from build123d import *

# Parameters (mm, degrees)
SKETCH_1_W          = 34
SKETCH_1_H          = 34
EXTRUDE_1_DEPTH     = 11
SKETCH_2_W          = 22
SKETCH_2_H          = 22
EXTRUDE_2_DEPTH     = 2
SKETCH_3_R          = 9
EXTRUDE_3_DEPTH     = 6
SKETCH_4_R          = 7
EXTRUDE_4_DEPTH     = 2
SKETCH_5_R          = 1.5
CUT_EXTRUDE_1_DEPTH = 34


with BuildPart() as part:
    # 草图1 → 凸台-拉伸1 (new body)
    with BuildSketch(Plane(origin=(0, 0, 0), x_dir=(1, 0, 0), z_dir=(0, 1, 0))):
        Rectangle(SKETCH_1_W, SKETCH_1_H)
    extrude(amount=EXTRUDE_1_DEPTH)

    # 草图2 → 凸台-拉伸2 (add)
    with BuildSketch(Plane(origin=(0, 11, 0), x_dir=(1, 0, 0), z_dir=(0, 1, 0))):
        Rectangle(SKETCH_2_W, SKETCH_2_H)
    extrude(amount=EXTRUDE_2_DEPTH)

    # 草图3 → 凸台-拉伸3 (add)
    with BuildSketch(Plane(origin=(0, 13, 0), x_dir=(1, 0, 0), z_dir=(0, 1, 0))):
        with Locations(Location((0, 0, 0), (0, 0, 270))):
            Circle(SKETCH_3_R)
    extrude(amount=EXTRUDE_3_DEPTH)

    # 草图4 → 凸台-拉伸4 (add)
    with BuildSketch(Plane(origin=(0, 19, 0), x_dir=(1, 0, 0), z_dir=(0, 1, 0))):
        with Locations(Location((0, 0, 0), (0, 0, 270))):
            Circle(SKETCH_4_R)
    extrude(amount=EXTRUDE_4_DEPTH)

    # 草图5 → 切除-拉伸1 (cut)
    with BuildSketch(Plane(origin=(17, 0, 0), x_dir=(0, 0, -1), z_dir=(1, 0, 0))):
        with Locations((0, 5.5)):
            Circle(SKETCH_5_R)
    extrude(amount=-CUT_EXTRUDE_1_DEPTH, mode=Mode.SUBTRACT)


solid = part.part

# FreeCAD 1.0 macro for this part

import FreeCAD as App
import Part
import Sketcher
from FreeCAD import Vector
Q = App.Units.Quantity

doc = App.newDocument("Part")
body = doc.addObject("PartDesign::Body", "Body")

# Sketch on XZ plane
sketch1 = body.newObject("Sketcher::SketchObject", "Sketch")
sketch1.AttachmentSupport = (doc.getObject("XZ_Plane"), [""])
sketch1.MapMode = "FlatFace"
sketch1.addGeometry(Part.LineSegment(Vector(-17, -17, 0), Vector(-17, 17, 0)), False)
sketch1.addGeometry(Part.LineSegment(Vector(-17, 17, 0), Vector(17, 17, 0)), False)
sketch1.addGeometry(Part.LineSegment(Vector(17, 17, 0), Vector(17, -17, 0)), False)
sketch1.addGeometry(Part.LineSegment(Vector(17, -17, 0), Vector(-17, -17, 0)), False)
sketch1.addConstraint(Sketcher.Constraint("Coincident", 0, 2, 1, 1))
sketch1.addConstraint(Sketcher.Constraint("Coincident", 1, 2, 2, 1))
sketch1.addConstraint(Sketcher.Constraint("Coincident", 2, 2, 3, 1))
sketch1.addConstraint(Sketcher.Constraint("Coincident", 3, 2, 0, 1))
sketch1.addConstraint(Sketcher.Constraint("Vertical", 0))
sketch1.addConstraint(Sketcher.Constraint("Horizontal", 1))
sketch1.addConstraint(Sketcher.Constraint("Vertical", 2))
sketch1.addConstraint(Sketcher.Constraint("Horizontal", 3))
sketch1.addConstraint(Sketcher.Constraint("Symmetric", 0, 2, 2, 2, -1, 1))
sketch1.addConstraint(Sketcher.Constraint("Equal", 3, 0))
sketch1.addConstraint(Sketcher.Constraint("DistanceX", 1, 1, 1, 2, Q("34 mm")))
pad1 = body.newObject("PartDesign::Pad", "Pad")
pad1.Profile = sketch1
pad1.Length = 11
pad1.Reversed = True

# Sketch on XZ plane
sketch2 = body.newObject("Sketcher::SketchObject", "Sketch001")
sketch2.AttachmentSupport = (doc.getObject("XZ_Plane"), [""])
sketch2.MapMode = "FlatFace"
sketch2.AttachmentOffset = App.Placement(Vector(0, 0, -11), App.Rotation())
sketch2.addGeometry(Part.LineSegment(Vector(-11, -11, 0), Vector(-11, 11, 0)), False)
sketch2.addGeometry(Part.LineSegment(Vector(-11, 11, 0), Vector(11, 11, 0)), False)
sketch2.addGeometry(Part.LineSegment(Vector(11, 11, 0), Vector(11, -11, 0)), False)
sketch2.addGeometry(Part.LineSegment(Vector(11, -11, 0), Vector(-11, -11, 0)), False)
sketch2.addConstraint(Sketcher.Constraint("Coincident", 0, 2, 1, 1))
sketch2.addConstraint(Sketcher.Constraint("Coincident", 1, 2, 2, 1))
sketch2.addConstraint(Sketcher.Constraint("Coincident", 2, 2, 3, 1))
sketch2.addConstraint(Sketcher.Constraint("Coincident", 3, 2, 0, 1))
sketch2.addConstraint(Sketcher.Constraint("Vertical", 0))
sketch2.addConstraint(Sketcher.Constraint("Horizontal", 1))
sketch2.addConstraint(Sketcher.Constraint("Vertical", 2))
sketch2.addConstraint(Sketcher.Constraint("Horizontal", 3))
sketch2.addConstraint(Sketcher.Constraint("Symmetric", 0, 2, 2, 2, -1, 1))
sketch2.addConstraint(Sketcher.Constraint("Equal", 3, 0))
sketch2.addConstraint(Sketcher.Constraint("DistanceX", 1, 1, 1, 2, Q("22 mm")))
pad2 = body.newObject("PartDesign::Pad", "Pad001")
pad2.Profile = sketch2
pad2.Length = 2
pad2.Reversed = True

# Sketch on XZ plane
sketch3 = body.newObject("Sketcher::SketchObject", "Sketch002")
sketch3.AttachmentSupport = (doc.getObject("XZ_Plane"), [""])
sketch3.MapMode = "FlatFace"
sketch3.AttachmentOffset = App.Placement(Vector(0, 0, -13), App.Rotation())
sketch3.addGeometry(Part.Circle(Vector(0, 0, 0), Vector(0, 0, 1), 9), False)
sketch3.addConstraint(Sketcher.Constraint("Coincident", 0, 3, -1, 1))
sketch3.addConstraint(Sketcher.Constraint("Diameter", 0, Q("18 mm")))
pad3 = body.newObject("PartDesign::Pad", "Pad002")
pad3.Profile = sketch3
pad3.Length = 6
pad3.Reversed = True

# Sketch on XZ plane
sketch4 = body.newObject("Sketcher::SketchObject", "Sketch003")
sketch4.AttachmentSupport = (doc.getObject("XZ_Plane"), [""])
sketch4.MapMode = "FlatFace"
sketch4.AttachmentOffset = App.Placement(Vector(0, 0, -19), App.Rotation())
sketch4.addGeometry(Part.Circle(Vector(0, 0, 0), Vector(0, 0, 1), 7), False)
sketch4.addConstraint(Sketcher.Constraint("Coincident", 0, 3, -1, 1))
sketch4.addConstraint(Sketcher.Constraint("Diameter", 0, Q("14 mm")))
pad4 = body.newObject("PartDesign::Pad", "Pad003")
pad4.Profile = sketch4
pad4.Length = 2
pad4.Reversed = True

# Sketch on YZ plane
sketch5 = body.newObject("Sketcher::SketchObject", "Sketch004")
sketch5.AttachmentSupport = (doc.getObject("YZ_Plane"), [""])
sketch5.MapMode = "FlatFace"
sketch5.AttachmentOffset = App.Placement(Vector(0, 0, 17), App.Rotation())
sketch5.addGeometry(Part.Circle(Vector(5.5, 0, 0), Vector(0, 0, 1), 1.5), False)
sketch5.addConstraint(Sketcher.Constraint("PointOnObject", 0, 3, -1))
sketch5.addConstraint(Sketcher.Constraint("Diameter", 0, Q("3 mm")))
sketch5.addConstraint(Sketcher.Constraint("DistanceX", -1, 1, 0, 3, Q("5.5 mm")))
pocket1 = body.newObject("PartDesign::Pocket", "Pocket")
pocket1.Profile = sketch5
pocket1.Length = 34

doc.recompute()
